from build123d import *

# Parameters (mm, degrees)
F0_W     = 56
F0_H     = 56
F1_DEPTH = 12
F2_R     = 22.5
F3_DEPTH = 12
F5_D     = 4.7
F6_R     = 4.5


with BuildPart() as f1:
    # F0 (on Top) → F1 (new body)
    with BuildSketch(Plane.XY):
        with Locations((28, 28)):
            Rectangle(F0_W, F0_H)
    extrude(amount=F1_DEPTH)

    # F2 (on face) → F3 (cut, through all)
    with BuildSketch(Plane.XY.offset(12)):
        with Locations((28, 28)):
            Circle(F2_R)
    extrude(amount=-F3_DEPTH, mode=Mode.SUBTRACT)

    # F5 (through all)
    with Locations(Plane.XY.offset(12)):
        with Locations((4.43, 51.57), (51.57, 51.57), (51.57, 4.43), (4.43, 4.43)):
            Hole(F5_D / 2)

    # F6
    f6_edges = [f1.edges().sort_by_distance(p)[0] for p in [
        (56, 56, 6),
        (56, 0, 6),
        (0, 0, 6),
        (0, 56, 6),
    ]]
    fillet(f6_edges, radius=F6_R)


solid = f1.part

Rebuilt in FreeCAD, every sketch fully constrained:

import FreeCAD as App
import Part
import Sketcher
from FreeCAD import Vector
Q = App.Units.Quantity


def edges_at(feature, points):
    """Names of the edges that pass closest to the given points."""
    edges = feature.Shape.Edges
    near = lambda p: min(range(len(edges)), key=lambda i: edges[i].distToShape(Part.Vertex(*p))[0])
    return sorted({f"Edge{near(p) + 1}" for p in points})


def add_polygon(sketch, points):
    """Adds a closed chain of lines whose ends are joined by coincident constraints."""
    first, n = sketch.GeometryCount, len(points)
    for a, b in zip(points, points[1:] + points[:1]):
        sketch.addGeometry(Part.LineSegment(App.Vector(*a, 0), App.Vector(*b, 0)), False)
    for i in range(n):
        sketch.addConstraint(Sketcher.Constraint("Coincident", first + i, 2, first + (i + 1) % n, 1))

doc = App.newDocument("Part")
body = doc.addObject("PartDesign::Body", "Body")

sketch1 = body.newObject("Sketcher::SketchObject", "Sketch")
sketch1.AttachmentSupport = (doc.getObject("XY_Plane"), [""])
sketch1.MapMode = "FlatFace"
add_polygon(sketch1, [(0, 56), (0, 0), (56, 0), (56, 56)])
sketch1.addConstraint(Sketcher.Constraint("Vertical", 0))
sketch1.addConstraint(Sketcher.Constraint("Horizontal", 1))
sketch1.addConstraint(Sketcher.Constraint("Vertical", 2))
sketch1.addConstraint(Sketcher.Constraint("Horizontal", 3))
sketch1.addConstraint(Sketcher.Constraint("Coincident", 0, 2, -1, 1))
sketch1.addConstraint(Sketcher.Constraint("Equal", 3, 0))
sketch1.addConstraint(Sketcher.Constraint("DistanceX", 1, 1, 1, 2, Q("56 mm")))
pad1 = body.newObject("PartDesign::Pad", "Pad")
pad1.Profile = sketch1
pad1.Length = 12

sketch2 = body.newObject("Sketcher::SketchObject", "Sketch001")
sketch2.AttachmentSupport = (doc.getObject("XY_Plane"), [""])
sketch2.MapMode = "FlatFace"
sketch2.AttachmentOffset = App.Placement(Vector(0, 0, 12), App.Rotation())
sketch2.addGeometry(Part.Circle(Vector(28, 28, 0), Vector(0, 0, 1), 22), False)
sketch2.addConstraint(Sketcher.Constraint("Diameter", 0, Q("45 mm")))
sketch2.addConstraint(Sketcher.Constraint("DistanceX", -1, 1, 0, 3, Q("28 mm")))
sketch2.addConstraint(Sketcher.Constraint("DistanceY", -1, 1, 0, 3, Q("28 mm")))
pocket1 = body.newObject("PartDesign::Pocket", "Pocket")
pocket1.Profile = sketch2
pocket1.Type = "ThroughAll"

sketch3 = body.newObject("Sketcher::SketchObject", "Sketch002")
sketch3.AttachmentSupport = (doc.getObject("XY_Plane"), [""])
sketch3.MapMode = "FlatFace"
sketch3.AttachmentOffset = App.Placement(Vector(0, 0, 12), App.Rotation())
sketch3.addGeometry(Part.Circle(Vector(4.4, 51.6, 0), Vector(0, 0, 1), 2.4), False)
sketch3.addGeometry(Part.Circle(Vector(51.6, 51.6, 0), Vector(0, 0, 1), 2.4), False)
sketch3.addGeometry(Part.Circle(Vector(51.6, 4.4, 0), Vector(0, 0, 1), 2.4), False)
sketch3.addGeometry(Part.Circle(Vector(4.4, 4.4, 0), Vector(0, 0, 1), 2.4), False)
sketch3.addConstraint(Sketcher.Constraint("Equal", 0, 1))
sketch3.addConstraint(Sketcher.Constraint("Equal", 1, 2))
sketch3.addConstraint(Sketcher.Constraint("Equal", 2, 3))
sketch3.addConstraint(Sketcher.Constraint("Horizontal", 0, 3, 1, 3))
sketch3.addConstraint(Sketcher.Constraint("Horizontal", 2, 3, 3, 3))
sketch3.addConstraint(Sketcher.Constraint("Vertical", 1, 3, 2, 3))
sketch3.addConstraint(Sketcher.Constraint("Vertical", 0, 3, 3, 3))
sketch3.addConstraint(Sketcher.Constraint("Diameter", 0, Q("4.7 mm")))
sketch3.addConstraint(Sketcher.Constraint("DistanceX", -1, 1, 0, 3, Q("4.43 mm")))
sketch3.addConstraint(Sketcher.Constraint("DistanceY", -1, 1, 0, 3, Q("51.57 mm")))
sketch3.addConstraint(Sketcher.Constraint("DistanceX", -1, 1, 1, 3, Q("51.57 mm")))
sketch3.addConstraint(Sketcher.Constraint("DistanceY", -1, 1, 2, 3, Q("4.43 mm")))
doc.recompute()
hole = body.newObject("PartDesign::Hole", "Hole")
hole.Profile = sketch3
hole.ThreadType = "None"
hole.Diameter = 4.7
hole.DepthType = "ThroughAll"
doc.recompute()

fillet = body.newObject("PartDesign::Fillet", "Fillet")
fillet.Base = (hole, edges_at(hole, [
    (56, 56, 6),
    (56, 0, 6),
    (0, 0, 6),
    (0, 56, 6),
]))
fillet.Radius = 4.5

doc.recompute()
